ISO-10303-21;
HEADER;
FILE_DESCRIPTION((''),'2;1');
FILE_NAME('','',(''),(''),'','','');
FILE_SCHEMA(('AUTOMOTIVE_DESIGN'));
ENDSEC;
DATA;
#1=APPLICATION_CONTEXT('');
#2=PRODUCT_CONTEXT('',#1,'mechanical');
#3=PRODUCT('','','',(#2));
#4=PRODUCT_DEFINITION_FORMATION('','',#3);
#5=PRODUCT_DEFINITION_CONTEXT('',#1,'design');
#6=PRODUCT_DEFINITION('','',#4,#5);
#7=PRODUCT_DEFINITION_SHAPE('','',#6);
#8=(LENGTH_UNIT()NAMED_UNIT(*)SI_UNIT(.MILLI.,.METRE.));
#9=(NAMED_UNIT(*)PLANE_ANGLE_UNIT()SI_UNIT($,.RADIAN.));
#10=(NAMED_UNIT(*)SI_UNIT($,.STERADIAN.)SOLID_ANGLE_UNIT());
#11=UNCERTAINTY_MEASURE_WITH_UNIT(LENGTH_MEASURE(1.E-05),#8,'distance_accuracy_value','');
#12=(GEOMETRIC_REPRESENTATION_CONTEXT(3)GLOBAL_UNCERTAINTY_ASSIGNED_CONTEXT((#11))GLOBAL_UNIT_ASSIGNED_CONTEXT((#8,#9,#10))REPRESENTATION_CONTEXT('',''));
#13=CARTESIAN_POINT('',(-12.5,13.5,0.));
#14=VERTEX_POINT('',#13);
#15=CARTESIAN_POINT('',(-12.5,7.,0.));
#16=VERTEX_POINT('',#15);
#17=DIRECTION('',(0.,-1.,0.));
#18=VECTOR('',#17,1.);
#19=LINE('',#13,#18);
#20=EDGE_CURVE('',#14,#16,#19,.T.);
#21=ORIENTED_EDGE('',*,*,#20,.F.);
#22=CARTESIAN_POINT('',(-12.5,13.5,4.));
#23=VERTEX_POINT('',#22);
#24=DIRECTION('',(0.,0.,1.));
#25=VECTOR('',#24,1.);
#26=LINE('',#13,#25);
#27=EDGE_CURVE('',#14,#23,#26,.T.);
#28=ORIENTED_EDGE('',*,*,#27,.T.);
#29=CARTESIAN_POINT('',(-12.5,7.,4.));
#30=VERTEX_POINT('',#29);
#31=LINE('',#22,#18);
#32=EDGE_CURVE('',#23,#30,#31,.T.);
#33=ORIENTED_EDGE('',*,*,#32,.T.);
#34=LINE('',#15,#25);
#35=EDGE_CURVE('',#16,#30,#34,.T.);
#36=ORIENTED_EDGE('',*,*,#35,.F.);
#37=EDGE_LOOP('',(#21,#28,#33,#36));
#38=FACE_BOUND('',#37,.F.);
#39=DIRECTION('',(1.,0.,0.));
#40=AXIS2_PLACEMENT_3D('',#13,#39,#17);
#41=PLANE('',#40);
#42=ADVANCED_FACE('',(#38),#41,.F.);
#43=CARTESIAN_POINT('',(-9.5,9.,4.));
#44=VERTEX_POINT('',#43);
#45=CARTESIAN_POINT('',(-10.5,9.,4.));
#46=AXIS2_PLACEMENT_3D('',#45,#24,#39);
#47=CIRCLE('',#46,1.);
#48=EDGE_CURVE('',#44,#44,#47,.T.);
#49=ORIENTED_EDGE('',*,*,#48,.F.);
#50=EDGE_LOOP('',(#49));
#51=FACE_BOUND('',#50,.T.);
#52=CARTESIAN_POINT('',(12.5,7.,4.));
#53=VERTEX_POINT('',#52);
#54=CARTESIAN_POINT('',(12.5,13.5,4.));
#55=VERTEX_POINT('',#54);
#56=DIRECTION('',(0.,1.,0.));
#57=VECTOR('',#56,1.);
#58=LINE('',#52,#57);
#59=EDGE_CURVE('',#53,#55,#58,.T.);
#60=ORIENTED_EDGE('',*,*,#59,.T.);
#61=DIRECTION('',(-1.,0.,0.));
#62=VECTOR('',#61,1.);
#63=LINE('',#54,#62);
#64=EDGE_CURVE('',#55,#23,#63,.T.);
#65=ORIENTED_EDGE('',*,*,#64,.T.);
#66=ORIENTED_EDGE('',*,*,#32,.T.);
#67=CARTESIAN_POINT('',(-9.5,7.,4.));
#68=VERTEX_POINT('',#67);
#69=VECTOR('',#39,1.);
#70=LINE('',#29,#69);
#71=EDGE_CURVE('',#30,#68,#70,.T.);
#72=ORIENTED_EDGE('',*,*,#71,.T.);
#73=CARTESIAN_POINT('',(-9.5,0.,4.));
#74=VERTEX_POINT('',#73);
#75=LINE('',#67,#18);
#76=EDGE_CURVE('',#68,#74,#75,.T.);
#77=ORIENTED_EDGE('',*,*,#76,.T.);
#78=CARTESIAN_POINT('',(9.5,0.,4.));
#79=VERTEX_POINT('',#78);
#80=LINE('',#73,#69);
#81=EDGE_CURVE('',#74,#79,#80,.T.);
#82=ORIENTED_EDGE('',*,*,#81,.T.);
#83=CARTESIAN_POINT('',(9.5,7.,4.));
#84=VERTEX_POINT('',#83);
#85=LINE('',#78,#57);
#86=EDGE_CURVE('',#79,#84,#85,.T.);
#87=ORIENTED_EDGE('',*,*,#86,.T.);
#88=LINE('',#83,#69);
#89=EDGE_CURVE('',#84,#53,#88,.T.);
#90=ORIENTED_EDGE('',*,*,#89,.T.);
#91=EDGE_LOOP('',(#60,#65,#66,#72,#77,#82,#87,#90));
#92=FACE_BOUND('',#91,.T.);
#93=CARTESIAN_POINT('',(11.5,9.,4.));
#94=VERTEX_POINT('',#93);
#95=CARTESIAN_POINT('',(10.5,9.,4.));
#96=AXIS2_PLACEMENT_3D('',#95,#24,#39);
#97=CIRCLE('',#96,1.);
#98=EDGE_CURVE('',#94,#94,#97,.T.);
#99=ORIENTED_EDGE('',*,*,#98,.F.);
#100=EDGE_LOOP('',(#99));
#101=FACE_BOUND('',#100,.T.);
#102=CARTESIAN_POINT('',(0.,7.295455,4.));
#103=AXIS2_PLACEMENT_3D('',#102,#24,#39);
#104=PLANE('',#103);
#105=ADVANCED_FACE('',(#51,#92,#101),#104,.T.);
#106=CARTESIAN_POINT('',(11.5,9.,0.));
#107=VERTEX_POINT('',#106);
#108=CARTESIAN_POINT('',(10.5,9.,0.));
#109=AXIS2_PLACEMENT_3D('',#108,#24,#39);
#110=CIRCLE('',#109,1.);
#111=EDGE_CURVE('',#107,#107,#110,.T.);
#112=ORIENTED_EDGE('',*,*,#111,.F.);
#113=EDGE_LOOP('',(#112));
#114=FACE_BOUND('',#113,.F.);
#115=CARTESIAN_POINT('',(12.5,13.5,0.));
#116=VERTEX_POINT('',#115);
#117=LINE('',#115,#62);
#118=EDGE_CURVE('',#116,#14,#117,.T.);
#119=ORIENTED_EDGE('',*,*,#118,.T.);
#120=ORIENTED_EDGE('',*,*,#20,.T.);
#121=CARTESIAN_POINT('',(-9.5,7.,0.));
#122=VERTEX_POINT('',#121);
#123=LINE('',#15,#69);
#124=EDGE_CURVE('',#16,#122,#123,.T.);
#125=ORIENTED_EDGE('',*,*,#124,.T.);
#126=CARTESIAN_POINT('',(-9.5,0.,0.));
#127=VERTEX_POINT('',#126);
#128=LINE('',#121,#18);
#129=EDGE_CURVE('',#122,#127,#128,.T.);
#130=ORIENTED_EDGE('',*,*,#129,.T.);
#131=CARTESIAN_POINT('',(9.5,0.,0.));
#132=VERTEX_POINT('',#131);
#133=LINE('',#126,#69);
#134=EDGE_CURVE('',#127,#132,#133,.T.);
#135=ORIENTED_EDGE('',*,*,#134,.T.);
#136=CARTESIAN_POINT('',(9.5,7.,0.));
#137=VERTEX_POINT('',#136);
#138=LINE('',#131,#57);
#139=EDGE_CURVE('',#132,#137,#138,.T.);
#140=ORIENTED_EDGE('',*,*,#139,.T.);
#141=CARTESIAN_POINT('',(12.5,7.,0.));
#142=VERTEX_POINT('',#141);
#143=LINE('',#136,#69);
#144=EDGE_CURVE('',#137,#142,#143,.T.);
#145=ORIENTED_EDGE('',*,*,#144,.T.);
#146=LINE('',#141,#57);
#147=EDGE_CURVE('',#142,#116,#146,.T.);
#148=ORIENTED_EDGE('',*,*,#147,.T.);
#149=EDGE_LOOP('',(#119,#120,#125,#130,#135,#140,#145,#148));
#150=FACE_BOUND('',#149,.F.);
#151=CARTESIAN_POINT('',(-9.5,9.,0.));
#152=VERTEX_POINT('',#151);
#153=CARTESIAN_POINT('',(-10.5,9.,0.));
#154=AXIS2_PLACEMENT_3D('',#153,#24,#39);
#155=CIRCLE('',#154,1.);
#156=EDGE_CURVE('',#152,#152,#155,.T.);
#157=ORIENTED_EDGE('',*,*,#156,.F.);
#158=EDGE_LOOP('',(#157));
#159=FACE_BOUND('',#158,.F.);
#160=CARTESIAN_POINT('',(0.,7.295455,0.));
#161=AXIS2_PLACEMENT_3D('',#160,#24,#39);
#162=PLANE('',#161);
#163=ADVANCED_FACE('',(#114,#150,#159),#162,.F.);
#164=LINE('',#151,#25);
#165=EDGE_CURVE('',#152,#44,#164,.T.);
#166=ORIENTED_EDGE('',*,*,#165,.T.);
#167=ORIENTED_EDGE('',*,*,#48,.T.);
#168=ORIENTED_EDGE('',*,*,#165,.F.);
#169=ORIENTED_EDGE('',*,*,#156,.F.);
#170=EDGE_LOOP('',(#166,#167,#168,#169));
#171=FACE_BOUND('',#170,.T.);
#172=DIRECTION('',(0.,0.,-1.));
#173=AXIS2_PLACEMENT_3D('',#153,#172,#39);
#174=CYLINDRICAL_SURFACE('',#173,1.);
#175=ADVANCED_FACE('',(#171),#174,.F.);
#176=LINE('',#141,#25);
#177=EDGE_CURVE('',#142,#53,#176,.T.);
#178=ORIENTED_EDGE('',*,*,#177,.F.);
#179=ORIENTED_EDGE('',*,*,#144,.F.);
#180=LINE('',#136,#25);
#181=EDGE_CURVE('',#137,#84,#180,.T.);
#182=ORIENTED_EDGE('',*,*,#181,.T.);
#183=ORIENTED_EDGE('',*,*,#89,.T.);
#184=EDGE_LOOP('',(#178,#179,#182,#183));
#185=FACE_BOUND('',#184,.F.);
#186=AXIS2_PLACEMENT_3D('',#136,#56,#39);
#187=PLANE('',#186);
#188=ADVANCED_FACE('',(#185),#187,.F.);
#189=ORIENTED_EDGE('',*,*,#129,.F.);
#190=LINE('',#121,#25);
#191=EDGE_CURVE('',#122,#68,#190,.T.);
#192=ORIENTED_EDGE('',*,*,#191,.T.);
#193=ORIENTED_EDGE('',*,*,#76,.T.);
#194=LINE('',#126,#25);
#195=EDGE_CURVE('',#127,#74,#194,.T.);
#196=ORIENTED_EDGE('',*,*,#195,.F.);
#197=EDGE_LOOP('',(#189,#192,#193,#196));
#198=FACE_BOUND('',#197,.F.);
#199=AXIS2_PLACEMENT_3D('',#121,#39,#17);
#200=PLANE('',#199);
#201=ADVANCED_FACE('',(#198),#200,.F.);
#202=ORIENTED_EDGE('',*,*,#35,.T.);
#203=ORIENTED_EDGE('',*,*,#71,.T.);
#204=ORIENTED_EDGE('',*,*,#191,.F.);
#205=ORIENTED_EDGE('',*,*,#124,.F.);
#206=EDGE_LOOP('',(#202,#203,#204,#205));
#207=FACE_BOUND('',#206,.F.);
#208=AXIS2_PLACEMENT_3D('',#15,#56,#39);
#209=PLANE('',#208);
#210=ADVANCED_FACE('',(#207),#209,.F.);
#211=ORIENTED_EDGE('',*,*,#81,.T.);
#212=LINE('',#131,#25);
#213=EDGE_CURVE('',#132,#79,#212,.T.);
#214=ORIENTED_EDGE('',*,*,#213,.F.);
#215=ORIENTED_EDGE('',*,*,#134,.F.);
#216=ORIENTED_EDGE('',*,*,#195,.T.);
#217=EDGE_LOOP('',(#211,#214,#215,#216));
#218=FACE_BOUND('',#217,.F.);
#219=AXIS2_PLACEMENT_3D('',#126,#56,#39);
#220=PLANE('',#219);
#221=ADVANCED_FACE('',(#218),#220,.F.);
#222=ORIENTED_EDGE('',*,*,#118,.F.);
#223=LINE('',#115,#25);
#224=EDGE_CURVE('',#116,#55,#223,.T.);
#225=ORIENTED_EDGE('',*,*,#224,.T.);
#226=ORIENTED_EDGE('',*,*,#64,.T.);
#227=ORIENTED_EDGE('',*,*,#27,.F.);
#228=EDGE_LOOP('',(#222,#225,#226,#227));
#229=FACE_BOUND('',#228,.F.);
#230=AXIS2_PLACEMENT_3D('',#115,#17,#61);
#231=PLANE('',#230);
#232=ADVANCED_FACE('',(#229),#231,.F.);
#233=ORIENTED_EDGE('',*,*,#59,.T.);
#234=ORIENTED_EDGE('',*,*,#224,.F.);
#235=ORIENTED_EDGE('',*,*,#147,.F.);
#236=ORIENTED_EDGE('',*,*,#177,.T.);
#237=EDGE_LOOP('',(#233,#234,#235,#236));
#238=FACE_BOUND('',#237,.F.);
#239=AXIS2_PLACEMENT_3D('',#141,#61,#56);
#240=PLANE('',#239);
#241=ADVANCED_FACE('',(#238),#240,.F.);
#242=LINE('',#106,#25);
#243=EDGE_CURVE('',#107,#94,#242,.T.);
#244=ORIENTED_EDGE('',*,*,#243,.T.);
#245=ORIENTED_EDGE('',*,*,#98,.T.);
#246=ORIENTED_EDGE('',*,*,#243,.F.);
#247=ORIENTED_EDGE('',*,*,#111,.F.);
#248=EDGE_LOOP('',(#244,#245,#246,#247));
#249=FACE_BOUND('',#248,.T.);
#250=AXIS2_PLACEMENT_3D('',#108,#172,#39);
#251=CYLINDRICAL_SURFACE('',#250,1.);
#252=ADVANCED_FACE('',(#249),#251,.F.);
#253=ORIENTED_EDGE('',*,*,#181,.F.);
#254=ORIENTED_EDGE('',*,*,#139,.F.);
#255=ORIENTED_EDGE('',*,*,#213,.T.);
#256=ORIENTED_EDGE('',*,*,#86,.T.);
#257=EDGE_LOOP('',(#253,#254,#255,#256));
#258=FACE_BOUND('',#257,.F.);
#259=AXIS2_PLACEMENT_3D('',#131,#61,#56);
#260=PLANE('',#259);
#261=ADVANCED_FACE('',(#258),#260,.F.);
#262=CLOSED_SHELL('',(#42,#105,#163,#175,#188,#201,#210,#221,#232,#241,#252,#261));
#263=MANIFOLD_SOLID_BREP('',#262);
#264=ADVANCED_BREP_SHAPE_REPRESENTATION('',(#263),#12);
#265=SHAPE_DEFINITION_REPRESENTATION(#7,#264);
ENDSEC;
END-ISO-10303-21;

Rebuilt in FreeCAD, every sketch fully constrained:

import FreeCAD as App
import Part
import Sketcher
from FreeCAD import Vector


def add_polygon(sketch, points):
    """Adds a closed chain of lines whose ends are joined by coincident constraints."""
    first, n = sketch.GeometryCount, len(points)
    for a, b in zip(points, points[1:] + points[:1]):
        sketch.addGeometry(Part.LineSegment(App.Vector(*a, 0), App.Vector(*b, 0)), False)
    for i in range(n):
        sketch.addConstraint(Sketcher.Constraint("Coincident", first + i, 2, first + (i + 1) % n, 1))

doc = App.newDocument("Part")
body = doc.addObject("PartDesign::Body", "Body")

# Sketch on XY plane
sketch1 = body.newObject("Sketcher::SketchObject", "Sketch")
sketch1.AttachmentSupport = (doc.getObject("XY_Plane"), [""])
sketch1.MapMode = "FlatFace"
add_polygon(sketch1, [(12.5, 13.5), (-12.5, 13.5), (-12.5, 7), (-9.5, 7), (-9.5, 0), (9.5, 0), (9.5, 7), (12.5, 7)])  # lines 0-7
sketch1.addGeometry(Part.Circle(Vector(-10.5, 9, 0), Vector(0, 0, 1), 1), False)  # 8
sketch1.addGeometry(Part.Circle(Vector(10.5, 9, 0), Vector(0, 0, 1), 1), False)  # 9
sketch1.addConstraint([
    Sketcher.Constraint("Horizontal", 0),
    Sketcher.Constraint("Vertical", 1),
    Sketcher.Constraint("Horizontal", 2),
    Sketcher.Constraint("Vertical", 3),
    Sketcher.Constraint("Horizontal", 4),
    Sketcher.Constraint("Vertical", 5),
    Sketcher.Constraint("Horizontal", 6),
    Sketcher.Constraint("Vertical", 7),
    Sketcher.Constraint("Equal", 8, 9),
    Sketcher.Constraint("Symmetric", 3, 2, 4, 2, -1, 1),
    Sketcher.Constraint("Symmetric", 8, 3, 9, 3, -2),
    Sketcher.Constraint("Symmetric", 1, 2, 6, 2, -2),
    Sketcher.Constraint("Diameter", 8, 2.0),
    Sketcher.Constraint("DistanceX", 0, 2, 0, 1, 25.0),
    Sketcher.Constraint("DistanceX", 2, 1, 2, 2, 3.0),
    Sketcher.Constraint("DistanceY", 3, 2, 3, 1, 7.0),
    Sketcher.Constraint("DistanceY", 1, 2, 1, 1, 6.5),
    Sketcher.Constraint("DistanceY", -1, 1, 8, 3, 9.0),
    Sketcher.Constraint("DistanceX", 8, 3, 9, 3, 21.0),
])
pad1 = body.newObject("PartDesign::Pad", "Pad")
pad1.Profile = sketch1
pad1.Length = 4

doc.recompute()
